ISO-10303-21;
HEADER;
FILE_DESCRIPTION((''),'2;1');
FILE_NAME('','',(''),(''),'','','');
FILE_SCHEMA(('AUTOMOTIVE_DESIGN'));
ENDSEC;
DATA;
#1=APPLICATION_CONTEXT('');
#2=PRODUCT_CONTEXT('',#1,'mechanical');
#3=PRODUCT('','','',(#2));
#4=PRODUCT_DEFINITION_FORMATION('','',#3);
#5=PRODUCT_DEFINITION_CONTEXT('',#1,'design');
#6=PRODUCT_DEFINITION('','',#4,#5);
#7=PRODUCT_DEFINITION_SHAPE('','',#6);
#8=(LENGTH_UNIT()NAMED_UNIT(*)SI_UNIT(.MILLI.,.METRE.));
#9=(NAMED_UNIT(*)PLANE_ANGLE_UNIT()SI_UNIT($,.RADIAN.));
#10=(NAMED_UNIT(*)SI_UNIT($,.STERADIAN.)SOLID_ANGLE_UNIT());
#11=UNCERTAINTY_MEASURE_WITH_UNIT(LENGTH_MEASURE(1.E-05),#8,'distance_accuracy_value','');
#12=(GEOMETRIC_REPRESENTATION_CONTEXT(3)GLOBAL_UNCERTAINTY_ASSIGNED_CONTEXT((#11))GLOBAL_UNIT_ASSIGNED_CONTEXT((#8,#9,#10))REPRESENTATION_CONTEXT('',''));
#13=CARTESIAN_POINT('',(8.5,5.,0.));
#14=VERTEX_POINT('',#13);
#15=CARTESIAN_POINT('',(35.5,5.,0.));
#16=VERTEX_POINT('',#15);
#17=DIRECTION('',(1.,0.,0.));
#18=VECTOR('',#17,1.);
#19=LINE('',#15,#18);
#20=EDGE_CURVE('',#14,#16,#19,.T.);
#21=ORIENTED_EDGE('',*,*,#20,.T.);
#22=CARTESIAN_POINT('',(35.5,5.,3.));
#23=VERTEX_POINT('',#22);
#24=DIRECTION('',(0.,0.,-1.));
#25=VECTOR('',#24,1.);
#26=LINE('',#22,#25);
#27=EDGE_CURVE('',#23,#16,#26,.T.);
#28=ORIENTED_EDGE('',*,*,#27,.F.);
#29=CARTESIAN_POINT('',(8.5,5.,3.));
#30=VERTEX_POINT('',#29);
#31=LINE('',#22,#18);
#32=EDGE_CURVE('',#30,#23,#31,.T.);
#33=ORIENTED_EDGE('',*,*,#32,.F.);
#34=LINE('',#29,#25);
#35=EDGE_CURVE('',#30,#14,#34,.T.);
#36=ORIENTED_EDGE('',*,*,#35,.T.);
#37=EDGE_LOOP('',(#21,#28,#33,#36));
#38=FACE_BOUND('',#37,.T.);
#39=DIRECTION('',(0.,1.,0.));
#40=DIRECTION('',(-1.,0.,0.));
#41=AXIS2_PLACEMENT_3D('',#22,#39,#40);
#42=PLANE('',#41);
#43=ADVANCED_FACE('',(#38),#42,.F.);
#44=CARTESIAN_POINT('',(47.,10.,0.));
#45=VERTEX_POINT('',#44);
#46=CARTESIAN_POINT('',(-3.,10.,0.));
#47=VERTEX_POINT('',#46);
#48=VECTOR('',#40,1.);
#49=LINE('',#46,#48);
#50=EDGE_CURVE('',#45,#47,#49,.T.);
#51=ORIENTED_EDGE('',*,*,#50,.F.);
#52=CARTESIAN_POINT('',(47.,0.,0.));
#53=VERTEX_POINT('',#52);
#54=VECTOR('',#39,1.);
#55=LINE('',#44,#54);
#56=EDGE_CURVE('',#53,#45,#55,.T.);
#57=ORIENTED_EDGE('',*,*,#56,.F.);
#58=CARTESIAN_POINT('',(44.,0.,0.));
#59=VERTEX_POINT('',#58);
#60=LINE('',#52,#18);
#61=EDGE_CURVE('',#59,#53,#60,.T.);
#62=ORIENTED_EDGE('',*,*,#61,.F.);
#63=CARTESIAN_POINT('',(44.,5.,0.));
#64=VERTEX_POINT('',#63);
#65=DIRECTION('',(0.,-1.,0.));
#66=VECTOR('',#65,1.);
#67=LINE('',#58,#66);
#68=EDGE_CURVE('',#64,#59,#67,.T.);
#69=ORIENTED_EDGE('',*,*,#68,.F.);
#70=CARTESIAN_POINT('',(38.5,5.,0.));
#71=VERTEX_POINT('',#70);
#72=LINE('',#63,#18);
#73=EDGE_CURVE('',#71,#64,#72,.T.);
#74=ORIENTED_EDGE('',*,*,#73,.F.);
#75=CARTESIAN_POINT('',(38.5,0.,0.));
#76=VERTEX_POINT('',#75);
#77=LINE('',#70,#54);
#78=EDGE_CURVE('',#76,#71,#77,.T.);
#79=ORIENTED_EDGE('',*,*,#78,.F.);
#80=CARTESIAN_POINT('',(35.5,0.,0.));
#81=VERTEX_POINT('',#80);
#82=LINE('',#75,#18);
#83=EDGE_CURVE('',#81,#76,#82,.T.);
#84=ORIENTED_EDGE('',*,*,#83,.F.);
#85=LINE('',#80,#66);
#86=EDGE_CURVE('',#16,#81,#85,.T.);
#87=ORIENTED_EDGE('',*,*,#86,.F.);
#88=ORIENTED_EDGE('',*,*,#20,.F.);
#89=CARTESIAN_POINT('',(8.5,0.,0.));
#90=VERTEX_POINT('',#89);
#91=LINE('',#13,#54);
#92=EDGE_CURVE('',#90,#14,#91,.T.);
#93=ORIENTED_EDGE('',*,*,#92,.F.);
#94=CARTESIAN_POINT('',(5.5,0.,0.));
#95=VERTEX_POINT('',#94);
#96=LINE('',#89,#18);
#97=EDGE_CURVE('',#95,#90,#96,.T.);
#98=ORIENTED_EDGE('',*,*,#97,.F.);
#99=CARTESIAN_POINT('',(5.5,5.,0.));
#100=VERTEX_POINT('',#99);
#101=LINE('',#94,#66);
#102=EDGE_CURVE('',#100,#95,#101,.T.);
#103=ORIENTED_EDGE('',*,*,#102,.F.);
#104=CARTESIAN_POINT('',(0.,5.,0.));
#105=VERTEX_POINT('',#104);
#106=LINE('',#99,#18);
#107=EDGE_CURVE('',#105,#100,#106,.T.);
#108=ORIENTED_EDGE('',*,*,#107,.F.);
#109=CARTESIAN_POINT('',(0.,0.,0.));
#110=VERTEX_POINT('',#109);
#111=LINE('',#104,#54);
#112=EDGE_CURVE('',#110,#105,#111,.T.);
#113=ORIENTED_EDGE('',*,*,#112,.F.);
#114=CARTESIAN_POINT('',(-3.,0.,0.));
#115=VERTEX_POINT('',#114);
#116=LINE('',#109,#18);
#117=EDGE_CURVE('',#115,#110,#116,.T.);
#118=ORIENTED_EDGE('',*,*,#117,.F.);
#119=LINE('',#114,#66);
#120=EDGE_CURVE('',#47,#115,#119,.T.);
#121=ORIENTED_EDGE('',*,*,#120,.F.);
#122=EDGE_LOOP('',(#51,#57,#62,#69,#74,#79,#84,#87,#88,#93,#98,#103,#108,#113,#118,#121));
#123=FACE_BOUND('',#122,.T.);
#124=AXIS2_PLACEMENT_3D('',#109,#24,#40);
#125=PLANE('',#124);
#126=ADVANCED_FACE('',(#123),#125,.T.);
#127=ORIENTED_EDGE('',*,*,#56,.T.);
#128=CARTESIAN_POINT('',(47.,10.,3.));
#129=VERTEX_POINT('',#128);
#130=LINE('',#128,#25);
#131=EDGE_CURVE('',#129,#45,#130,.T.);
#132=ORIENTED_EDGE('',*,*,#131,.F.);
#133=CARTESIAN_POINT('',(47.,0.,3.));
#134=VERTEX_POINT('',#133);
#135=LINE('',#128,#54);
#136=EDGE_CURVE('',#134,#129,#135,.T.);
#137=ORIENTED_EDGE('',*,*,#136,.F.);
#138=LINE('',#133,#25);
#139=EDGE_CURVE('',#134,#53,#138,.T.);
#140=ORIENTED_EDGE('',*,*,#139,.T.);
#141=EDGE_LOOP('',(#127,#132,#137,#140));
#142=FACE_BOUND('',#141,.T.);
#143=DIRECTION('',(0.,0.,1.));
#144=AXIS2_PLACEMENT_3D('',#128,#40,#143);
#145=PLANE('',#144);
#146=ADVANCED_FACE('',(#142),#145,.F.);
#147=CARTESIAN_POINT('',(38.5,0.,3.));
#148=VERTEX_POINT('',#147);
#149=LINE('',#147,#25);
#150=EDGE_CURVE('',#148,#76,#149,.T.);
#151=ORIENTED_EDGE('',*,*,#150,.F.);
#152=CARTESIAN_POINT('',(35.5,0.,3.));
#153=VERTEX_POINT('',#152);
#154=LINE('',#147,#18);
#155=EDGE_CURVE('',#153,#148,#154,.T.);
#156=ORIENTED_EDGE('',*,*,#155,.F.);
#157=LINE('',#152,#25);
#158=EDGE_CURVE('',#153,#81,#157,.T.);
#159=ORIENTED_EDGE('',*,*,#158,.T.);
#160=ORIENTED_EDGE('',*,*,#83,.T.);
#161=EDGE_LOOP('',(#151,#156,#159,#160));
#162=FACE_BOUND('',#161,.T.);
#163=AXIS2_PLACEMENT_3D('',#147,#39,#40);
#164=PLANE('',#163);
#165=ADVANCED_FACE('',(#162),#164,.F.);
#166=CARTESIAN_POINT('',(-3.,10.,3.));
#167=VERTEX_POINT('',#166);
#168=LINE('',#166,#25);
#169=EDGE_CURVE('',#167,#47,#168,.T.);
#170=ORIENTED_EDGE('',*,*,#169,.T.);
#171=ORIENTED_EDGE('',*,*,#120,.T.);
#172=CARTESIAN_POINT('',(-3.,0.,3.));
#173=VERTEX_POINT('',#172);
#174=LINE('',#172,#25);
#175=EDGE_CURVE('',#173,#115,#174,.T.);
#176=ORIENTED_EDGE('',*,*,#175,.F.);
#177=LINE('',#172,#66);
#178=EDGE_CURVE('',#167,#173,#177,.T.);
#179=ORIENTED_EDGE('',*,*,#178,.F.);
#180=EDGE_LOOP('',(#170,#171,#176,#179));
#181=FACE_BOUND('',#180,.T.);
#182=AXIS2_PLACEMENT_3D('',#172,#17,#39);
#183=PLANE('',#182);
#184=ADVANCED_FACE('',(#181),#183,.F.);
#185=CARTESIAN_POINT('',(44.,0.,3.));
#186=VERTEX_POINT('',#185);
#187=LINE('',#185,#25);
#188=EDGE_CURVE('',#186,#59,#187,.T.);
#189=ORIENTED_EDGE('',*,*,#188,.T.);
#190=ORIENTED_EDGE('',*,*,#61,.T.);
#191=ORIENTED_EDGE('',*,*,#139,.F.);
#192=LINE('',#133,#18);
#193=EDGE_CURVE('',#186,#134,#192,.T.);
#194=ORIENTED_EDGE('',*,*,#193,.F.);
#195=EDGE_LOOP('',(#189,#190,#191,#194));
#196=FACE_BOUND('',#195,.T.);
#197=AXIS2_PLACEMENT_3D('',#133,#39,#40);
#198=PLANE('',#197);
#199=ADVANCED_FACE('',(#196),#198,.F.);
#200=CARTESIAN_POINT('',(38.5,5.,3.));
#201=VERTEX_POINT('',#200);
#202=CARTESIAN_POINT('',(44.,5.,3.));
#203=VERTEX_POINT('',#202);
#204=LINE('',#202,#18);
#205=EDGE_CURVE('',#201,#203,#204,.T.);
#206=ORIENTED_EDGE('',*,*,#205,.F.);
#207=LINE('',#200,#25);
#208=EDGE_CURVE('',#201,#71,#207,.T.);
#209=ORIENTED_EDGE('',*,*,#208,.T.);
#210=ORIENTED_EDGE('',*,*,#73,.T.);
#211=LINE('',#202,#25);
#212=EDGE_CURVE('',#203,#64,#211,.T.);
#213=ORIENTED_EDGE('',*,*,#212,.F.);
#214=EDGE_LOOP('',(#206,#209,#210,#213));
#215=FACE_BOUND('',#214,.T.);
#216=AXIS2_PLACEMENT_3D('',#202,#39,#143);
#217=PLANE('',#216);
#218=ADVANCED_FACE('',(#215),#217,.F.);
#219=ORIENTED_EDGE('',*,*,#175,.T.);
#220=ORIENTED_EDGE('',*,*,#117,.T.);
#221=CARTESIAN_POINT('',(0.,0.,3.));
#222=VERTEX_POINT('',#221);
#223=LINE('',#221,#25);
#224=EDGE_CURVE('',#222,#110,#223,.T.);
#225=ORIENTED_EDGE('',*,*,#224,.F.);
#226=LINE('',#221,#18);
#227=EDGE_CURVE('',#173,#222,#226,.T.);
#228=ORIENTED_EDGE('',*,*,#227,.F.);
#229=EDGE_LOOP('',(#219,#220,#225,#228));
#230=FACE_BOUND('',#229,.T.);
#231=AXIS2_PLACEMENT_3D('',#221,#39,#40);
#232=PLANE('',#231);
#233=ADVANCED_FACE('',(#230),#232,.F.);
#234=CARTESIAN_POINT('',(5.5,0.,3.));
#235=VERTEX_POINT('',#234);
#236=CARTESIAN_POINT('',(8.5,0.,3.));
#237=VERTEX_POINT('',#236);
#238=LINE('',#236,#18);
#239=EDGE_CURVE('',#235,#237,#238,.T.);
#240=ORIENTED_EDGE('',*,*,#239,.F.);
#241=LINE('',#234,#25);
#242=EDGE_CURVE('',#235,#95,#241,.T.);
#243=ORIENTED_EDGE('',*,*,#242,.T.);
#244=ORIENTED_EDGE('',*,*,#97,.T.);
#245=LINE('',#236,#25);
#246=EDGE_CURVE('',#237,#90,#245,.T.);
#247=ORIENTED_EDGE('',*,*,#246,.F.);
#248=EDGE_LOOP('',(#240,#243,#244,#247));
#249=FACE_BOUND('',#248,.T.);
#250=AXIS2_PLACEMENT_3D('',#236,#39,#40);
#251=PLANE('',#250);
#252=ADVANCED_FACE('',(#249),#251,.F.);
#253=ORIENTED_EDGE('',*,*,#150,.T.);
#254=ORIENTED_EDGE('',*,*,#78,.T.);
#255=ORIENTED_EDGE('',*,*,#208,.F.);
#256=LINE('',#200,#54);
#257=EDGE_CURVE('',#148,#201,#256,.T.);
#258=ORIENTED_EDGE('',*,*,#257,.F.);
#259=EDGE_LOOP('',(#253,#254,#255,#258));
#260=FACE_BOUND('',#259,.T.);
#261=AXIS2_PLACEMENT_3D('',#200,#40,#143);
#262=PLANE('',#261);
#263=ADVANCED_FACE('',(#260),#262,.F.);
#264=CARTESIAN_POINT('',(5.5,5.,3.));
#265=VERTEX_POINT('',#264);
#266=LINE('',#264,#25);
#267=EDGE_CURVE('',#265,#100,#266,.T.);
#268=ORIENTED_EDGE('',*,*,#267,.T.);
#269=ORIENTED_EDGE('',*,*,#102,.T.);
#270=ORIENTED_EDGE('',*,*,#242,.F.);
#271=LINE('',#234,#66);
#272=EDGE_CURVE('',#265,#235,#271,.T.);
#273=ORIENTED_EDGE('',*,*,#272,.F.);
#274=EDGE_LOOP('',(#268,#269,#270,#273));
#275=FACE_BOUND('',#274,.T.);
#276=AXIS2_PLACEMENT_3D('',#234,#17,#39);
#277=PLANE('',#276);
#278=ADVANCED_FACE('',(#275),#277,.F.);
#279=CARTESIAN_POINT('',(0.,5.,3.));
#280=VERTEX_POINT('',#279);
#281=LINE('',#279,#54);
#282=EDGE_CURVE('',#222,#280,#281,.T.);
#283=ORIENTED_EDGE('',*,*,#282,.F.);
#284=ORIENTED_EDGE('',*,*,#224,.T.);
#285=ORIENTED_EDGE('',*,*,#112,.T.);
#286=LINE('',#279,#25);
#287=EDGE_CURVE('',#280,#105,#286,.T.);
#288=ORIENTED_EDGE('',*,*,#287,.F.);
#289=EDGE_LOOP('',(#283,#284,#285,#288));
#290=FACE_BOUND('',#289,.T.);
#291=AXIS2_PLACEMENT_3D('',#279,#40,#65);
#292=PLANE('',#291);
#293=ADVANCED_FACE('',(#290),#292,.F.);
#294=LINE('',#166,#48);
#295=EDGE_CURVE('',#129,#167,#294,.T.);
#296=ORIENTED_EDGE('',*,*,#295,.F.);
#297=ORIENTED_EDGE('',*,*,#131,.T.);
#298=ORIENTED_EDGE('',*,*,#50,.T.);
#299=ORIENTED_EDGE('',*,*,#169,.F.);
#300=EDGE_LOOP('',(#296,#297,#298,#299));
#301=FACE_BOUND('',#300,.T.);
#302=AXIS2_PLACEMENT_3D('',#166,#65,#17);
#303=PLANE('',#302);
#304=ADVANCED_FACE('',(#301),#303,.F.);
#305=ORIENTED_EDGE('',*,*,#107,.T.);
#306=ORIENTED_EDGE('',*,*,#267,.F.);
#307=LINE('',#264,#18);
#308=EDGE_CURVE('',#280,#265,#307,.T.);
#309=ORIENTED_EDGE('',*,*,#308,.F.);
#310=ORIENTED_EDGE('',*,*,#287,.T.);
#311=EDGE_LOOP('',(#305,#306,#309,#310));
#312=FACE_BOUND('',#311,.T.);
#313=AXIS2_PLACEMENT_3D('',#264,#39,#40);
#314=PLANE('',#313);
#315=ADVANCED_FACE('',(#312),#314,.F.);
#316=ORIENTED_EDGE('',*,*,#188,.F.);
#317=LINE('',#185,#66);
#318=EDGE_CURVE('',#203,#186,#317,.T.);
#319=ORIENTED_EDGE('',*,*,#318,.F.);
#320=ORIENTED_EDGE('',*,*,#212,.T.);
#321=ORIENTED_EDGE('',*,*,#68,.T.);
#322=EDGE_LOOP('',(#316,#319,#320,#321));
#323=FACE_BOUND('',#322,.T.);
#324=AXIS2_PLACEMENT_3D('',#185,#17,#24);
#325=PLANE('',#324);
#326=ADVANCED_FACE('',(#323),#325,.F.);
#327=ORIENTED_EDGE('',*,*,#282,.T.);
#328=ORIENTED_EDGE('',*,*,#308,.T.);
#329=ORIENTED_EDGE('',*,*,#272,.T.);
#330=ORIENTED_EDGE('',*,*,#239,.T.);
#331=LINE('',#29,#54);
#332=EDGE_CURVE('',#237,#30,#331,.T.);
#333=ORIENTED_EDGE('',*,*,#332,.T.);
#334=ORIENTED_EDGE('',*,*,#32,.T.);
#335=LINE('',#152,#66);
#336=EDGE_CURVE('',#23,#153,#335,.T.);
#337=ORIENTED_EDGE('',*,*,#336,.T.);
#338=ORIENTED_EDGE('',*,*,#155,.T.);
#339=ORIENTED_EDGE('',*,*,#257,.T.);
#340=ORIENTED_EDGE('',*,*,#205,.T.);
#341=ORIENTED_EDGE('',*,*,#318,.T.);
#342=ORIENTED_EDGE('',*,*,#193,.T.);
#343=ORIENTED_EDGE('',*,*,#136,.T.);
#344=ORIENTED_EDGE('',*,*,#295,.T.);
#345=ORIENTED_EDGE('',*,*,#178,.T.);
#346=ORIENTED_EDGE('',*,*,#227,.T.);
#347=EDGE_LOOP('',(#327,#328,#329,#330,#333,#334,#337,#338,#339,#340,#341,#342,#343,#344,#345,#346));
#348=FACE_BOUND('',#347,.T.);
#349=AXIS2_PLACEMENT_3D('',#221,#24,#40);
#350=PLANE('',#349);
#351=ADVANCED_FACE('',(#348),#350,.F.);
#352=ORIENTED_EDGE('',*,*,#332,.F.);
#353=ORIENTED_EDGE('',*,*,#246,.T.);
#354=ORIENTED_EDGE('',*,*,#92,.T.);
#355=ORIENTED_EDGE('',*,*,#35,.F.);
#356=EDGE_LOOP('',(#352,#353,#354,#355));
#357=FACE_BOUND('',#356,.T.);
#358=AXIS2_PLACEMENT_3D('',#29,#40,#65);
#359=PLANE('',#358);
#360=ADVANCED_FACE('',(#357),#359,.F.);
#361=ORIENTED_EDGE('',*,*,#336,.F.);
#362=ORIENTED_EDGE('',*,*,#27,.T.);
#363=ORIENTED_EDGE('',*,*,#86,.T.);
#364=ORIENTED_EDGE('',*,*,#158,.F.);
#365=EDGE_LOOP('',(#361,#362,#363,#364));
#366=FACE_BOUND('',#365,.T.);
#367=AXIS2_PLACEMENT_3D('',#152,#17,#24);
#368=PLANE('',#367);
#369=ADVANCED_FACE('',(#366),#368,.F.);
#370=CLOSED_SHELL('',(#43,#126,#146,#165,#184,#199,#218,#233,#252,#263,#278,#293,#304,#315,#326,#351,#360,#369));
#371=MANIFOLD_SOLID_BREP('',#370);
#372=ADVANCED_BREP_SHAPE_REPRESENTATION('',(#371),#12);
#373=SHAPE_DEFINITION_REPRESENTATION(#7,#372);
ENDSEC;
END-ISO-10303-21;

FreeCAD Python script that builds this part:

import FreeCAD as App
import Part
import Sketcher

V = App.Vector

doc = App.newDocument("Part")
params = doc.addObject("Spreadsheet::Sheet", "Params")
for row, (alias, value) in enumerate([
    ("sketch1_width", "3 mm"),
    ("sketch1_width2", "27 mm"),
    ("sketch1_width3", "50 mm"),
    ("sketch1_height", "5 mm"),
    ("sketch1_height2", "10 mm"),
    ("pad1_length", "3 mm"),
], start=1):
    params.set(f"A{row}", alias)
    params.set(f"B{row}", "=" + value)
    params.setAlias(f"B{row}", alias)

body = doc.addObject("PartDesign::Body", "Body")

sketch1 = doc.addObject("Sketcher::SketchObject", "Sketch")
body.addObject(sketch1)
sketch1.AttachmentSupport = (doc.XY_Plane, [""])
sketch1.MapMode = "FlatFace"
sketch1.addGeometry([
    Part.LineSegment(V(-3, 0, 0), V(0, 0, 0)),
    Part.LineSegment(V(0, 0, 0), V(0, 5, 0)),
    Part.LineSegment(V(0, 5, 0), V(5.5, 5, 0)),
    Part.LineSegment(V(5.5, 5, 0), V(5.5, 0, 0)),
    Part.LineSegment(V(5.5, 0, 0), V(8.5, 0, 0)),
    Part.LineSegment(V(8.5, 0, 0), V(8.5, 5, 0)),
    Part.LineSegment(V(8.5, 5, 0), V(35.5, 5, 0)),
    Part.LineSegment(V(35.5, 5, 0), V(35.5, 0, 0)),
    Part.LineSegment(V(35.5, 0, 0), V(38.5, 0, 0)),
    Part.LineSegment(V(38.5, 0, 0), V(38.5, 5, 0)),
    Part.LineSegment(V(38.5, 5, 0), V(44, 5, 0)),
    Part.LineSegment(V(44, 5, 0), V(44, 0, 0)),
    Part.LineSegment(V(44, 0, 0), V(47, 0, 0)),
    Part.LineSegment(V(47, 0, 0), V(47, 10, 0)),
    Part.LineSegment(V(47, 10, 0), V(-3, 10, 0)),
    Part.LineSegment(V(-3, 10, 0), V(-3, 0, 0)),
], False)
sketch1.addConstraint([
    Sketcher.Constraint("Coincident", 0, 2, 1, 1),
    Sketcher.Constraint("Coincident", 1, 2, 2, 1),
    Sketcher.Constraint("Coincident", 2, 2, 3, 1),
    Sketcher.Constraint("Coincident", 3, 2, 4, 1),
    Sketcher.Constraint("Coincident", 4, 2, 5, 1),
    Sketcher.Constraint("Coincident", 5, 2, 6, 1),
    Sketcher.Constraint("Coincident", 6, 2, 7, 1),
    Sketcher.Constraint("Coincident", 7, 2, 8, 1),
    Sketcher.Constraint("Coincident", 8, 2, 9, 1),
    Sketcher.Constraint("Coincident", 9, 2, 10, 1),
    Sketcher.Constraint("Coincident", 10, 2, 11, 1),
    Sketcher.Constraint("Coincident", 11, 2, 12, 1),
    Sketcher.Constraint("Coincident", 12, 2, 13, 1),
    Sketcher.Constraint("Coincident", 13, 2, 14, 1),
    Sketcher.Constraint("Coincident", 14, 2, 15, 1),
    Sketcher.Constraint("Coincident", 15, 2, 0, 1),
    Sketcher.Constraint("Horizontal", 0),
    Sketcher.Constraint("Vertical", 1),
    Sketcher.Constraint("Horizontal", 2),
    Sketcher.Constraint("Vertical", 3),
    Sketcher.Constraint("Horizontal", 4),
    Sketcher.Constraint("Vertical", 5),
    Sketcher.Constraint("Horizontal", 6),
    Sketcher.Constraint("Vertical", 7),
    Sketcher.Constraint("Horizontal", 8),
    Sketcher.Constraint("Vertical", 9),
    Sketcher.Constraint("Horizontal", 10),
    Sketcher.Constraint("Vertical", 11),
    Sketcher.Constraint("Horizontal", 12),
    Sketcher.Constraint("Vertical", 13),
    Sketcher.Constraint("Horizontal", 14),
    Sketcher.Constraint("Vertical", 15),
    Sketcher.Constraint("Coincident", 0, 2, -1, 1),
    Sketcher.Constraint("PointOnObject", 3, 2, -1),
    Sketcher.Constraint("PointOnObject", 7, 2, -1),
    Sketcher.Constraint("PointOnObject", 11, 2, -1),
    Sketcher.Constraint("Horizontal", 2, 2, 5, 2),
    Sketcher.Constraint("Horizontal", 6, 2, 9, 2),
    Sketcher.Constraint("Equal", 0, 4),
    Sketcher.Constraint("Equal", 4, 8),
    Sketcher.Constraint("Equal", 2, 10),
    Sketcher.Constraint("Equal", 8, 12),
    Sketcher.Constraint("DistanceX", 0, 1, 0, 2, 3.0),
    Sketcher.Constraint("DistanceX", 6, 1, 6, 2, 27.0),
    Sketcher.Constraint("DistanceX", 14, 2, 14, 1, 50.0),
    Sketcher.Constraint("DistanceY", 1, 1, 1, 2, 5.0),
    Sketcher.Constraint("DistanceY", 13, 1, 13, 2, 10.0),
])
sketch1.setExpression("Constraints[42]", "Params.sketch1_width")
sketch1.setExpression("Constraints[43]", "Params.sketch1_width2")
sketch1.setExpression("Constraints[44]", "Params.sketch1_width3")
sketch1.setExpression("Constraints[45]", "Params.sketch1_height")
sketch1.setExpression("Constraints[46]", "Params.sketch1_height2")
pad1 = doc.addObject("PartDesign::Pad", "Pad")
body.addObject(pad1)
pad1.Profile = sketch1
pad1.setExpression("Length", "Params.pad1_length")

doc.recompute()
